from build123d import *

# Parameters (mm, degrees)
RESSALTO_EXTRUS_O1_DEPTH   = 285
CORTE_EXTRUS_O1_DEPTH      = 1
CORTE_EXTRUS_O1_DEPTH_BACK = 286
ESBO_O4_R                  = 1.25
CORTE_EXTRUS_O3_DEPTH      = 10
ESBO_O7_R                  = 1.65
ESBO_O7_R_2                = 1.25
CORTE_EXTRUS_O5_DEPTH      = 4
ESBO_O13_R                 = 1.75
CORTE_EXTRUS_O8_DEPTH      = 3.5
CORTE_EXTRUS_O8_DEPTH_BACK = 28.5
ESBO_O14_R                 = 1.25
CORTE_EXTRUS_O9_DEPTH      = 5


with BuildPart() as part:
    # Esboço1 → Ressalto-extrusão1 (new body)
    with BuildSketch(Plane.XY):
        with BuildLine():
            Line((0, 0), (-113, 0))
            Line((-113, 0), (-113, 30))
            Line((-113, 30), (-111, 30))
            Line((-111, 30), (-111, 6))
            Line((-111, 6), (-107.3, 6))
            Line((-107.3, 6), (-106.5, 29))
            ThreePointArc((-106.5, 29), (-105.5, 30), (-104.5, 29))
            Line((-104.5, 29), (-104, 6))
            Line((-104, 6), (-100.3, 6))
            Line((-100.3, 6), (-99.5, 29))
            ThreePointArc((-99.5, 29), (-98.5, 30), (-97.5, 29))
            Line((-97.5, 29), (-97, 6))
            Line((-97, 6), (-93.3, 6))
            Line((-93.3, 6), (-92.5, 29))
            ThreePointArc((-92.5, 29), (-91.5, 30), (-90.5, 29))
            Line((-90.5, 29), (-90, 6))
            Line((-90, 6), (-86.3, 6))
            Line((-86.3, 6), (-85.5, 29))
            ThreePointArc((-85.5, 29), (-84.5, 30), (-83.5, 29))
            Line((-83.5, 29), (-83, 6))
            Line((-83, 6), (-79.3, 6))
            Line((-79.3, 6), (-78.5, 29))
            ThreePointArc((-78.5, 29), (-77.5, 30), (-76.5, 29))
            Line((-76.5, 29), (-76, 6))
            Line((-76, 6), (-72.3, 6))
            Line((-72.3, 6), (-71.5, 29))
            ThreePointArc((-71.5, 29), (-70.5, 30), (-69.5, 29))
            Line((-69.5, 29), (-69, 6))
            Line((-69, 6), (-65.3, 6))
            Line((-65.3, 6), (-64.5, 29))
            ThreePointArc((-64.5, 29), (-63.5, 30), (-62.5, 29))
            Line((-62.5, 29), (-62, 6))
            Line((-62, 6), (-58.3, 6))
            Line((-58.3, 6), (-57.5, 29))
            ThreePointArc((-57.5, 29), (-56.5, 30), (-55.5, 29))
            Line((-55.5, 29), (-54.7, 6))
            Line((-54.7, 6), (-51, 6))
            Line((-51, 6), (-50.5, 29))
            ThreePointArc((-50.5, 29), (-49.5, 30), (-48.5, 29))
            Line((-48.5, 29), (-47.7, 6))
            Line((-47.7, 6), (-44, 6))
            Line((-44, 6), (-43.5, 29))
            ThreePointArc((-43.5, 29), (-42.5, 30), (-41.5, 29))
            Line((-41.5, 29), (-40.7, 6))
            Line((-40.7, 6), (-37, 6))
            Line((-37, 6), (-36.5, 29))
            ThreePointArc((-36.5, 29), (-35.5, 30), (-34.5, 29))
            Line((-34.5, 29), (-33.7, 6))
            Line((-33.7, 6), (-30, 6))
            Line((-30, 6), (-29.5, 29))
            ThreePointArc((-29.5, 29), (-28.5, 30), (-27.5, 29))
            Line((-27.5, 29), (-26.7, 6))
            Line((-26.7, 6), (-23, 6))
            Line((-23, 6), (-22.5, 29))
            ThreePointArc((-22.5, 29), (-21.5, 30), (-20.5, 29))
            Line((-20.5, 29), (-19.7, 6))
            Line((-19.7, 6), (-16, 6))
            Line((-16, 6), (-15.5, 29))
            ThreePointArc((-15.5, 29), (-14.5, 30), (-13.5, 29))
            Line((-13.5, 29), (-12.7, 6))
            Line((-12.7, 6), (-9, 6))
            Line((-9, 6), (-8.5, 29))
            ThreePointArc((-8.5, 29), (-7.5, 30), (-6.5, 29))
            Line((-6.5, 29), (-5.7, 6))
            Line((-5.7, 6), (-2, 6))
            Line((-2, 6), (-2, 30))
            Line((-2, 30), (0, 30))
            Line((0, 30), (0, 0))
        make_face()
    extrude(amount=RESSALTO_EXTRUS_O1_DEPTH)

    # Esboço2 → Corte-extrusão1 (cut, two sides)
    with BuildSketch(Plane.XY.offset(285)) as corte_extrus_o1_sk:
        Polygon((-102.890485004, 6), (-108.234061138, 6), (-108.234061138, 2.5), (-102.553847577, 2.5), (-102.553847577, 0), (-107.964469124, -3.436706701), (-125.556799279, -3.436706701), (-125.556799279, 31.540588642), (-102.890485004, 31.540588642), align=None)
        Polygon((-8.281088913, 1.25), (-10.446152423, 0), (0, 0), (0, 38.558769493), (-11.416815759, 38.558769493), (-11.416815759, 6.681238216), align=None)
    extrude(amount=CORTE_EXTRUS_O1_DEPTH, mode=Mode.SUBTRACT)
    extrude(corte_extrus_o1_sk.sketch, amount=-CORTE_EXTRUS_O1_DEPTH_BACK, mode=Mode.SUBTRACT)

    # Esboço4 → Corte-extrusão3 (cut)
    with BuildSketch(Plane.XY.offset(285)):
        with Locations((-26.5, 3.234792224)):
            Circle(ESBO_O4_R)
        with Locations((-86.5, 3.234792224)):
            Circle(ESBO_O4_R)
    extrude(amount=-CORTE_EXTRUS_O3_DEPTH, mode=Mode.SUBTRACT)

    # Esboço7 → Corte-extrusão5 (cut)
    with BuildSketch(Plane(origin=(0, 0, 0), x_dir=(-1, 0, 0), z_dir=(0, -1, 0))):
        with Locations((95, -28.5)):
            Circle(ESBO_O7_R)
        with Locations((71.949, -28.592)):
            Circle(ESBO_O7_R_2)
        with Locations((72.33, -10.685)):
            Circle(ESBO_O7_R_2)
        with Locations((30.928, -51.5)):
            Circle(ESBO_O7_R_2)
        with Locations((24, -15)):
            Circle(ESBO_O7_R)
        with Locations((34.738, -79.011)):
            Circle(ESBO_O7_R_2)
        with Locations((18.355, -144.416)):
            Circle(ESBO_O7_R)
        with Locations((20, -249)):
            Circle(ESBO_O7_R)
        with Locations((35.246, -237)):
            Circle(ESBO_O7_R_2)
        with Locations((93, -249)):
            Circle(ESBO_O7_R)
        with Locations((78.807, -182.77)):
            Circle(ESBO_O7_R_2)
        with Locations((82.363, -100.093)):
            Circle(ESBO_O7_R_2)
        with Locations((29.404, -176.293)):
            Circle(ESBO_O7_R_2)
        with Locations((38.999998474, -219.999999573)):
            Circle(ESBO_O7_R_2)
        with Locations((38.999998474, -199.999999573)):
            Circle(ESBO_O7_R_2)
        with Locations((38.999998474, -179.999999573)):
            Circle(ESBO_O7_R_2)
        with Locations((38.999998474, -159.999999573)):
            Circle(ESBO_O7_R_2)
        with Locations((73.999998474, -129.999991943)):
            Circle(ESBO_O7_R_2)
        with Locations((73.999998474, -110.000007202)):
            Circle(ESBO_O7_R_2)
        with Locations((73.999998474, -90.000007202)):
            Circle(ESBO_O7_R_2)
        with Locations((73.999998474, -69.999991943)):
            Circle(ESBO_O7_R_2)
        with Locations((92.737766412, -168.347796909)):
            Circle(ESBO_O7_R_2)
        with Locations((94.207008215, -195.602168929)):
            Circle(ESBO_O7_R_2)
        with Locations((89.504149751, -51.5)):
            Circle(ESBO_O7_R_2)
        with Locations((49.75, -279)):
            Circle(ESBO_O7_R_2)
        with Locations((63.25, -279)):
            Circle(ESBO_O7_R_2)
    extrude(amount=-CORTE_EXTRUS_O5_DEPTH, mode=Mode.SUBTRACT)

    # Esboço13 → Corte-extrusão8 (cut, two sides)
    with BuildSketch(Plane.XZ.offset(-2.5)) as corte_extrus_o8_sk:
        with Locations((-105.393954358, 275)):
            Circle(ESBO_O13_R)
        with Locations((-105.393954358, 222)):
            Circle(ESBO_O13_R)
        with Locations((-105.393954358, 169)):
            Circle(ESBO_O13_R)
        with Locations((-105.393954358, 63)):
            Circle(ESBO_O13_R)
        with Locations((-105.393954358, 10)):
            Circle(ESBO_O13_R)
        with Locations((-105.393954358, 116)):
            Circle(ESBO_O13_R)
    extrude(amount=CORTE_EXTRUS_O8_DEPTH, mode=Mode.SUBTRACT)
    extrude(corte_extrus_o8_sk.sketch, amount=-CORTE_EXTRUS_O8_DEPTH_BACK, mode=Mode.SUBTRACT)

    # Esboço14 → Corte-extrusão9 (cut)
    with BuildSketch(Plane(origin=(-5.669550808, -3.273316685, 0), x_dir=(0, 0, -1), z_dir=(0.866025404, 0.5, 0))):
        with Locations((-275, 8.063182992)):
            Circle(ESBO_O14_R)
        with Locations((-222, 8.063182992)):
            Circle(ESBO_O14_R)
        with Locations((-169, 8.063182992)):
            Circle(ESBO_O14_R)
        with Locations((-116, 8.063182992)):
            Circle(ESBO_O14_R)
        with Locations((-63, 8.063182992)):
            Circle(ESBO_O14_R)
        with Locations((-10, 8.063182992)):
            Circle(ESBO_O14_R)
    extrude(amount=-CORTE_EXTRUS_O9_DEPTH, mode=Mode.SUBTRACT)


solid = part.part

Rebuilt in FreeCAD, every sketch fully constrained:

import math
import FreeCAD as App
import Part
import Sketcher

V = App.Vector
Q = App.Units.Quantity


def add_polygon(sketch, points):
    """Adds a closed chain of lines whose ends are joined by coincident constraints."""
    first, n = sketch.GeometryCount, len(points)
    for a, b in zip(points, points[1:] + points[:1]):
        sketch.addGeometry(Part.LineSegment(App.Vector(*a, 0), App.Vector(*b, 0)), False)
    for i in range(n):
        sketch.addConstraint(Sketcher.Constraint("Coincident", first + i, 2, first + (i + 1) % n, 1))

doc = App.newDocument("Part")
body = doc.addObject("PartDesign::Body", "Body")

sketch1 = doc.addObject("Sketcher::SketchObject", "Sketch")
body.addObject(sketch1)
sketch1.AttachmentSupport = (doc.XY_Plane, [""])
sketch1.MapMode = "FlatFace"
sketch1.addGeometry([
    Part.LineSegment(V(-113, 0, 0), V(0, 0, 0)),
    Part.LineSegment(V(0, 0, 0), V(0, 30, 0)),
    Part.LineSegment(V(0, 30, 0), V(-2, 30, 0)),
    Part.LineSegment(V(-2, 30, 0), V(-2, 6, 0)),
    Part.LineSegment(V(-2, 6, 0), V(-5.7, 6, 0)),
    Part.LineSegment(V(-5.7, 6, 0), V(-6.5, 29, 0)),
    Part.ArcOfCircle(Part.Circle(V(-7.5, 29, 0), V(0, 0, 1), 1), math.radians(0), math.radians(180)),
    Part.LineSegment(V(-8.5, 29, 0), V(-9, 6, 0)),
    Part.LineSegment(V(-9, 6, 0), V(-12.7, 6, 0)),
    Part.LineSegment(V(-12.7, 6, 0), V(-13.5, 29, 0)),
    Part.ArcOfCircle(Part.Circle(V(-14.5, 29, 0), V(0, 0, 1), 1), math.radians(0), math.radians(180)),
    Part.LineSegment(V(-15.5, 29, 0), V(-16, 6, 0)),
    Part.LineSegment(V(-16, 6, 0), V(-19.7, 6, 0)),
    Part.LineSegment(V(-19.7, 6, 0), V(-20.5, 29, 0)),
    Part.ArcOfCircle(Part.Circle(V(-21.5, 29, 0), V(0, 0, 1), 1), math.radians(0), math.radians(180)),
    Part.LineSegment(V(-22.5, 29, 0), V(-23, 6, 0)),
    Part.LineSegment(V(-23, 6, 0), V(-26.7, 6, 0)),
    Part.LineSegment(V(-26.7, 6, 0), V(-27.5, 29, 0)),
    Part.ArcOfCircle(Part.Circle(V(-28.5, 29, 0), V(0, 0, 1), 1), math.radians(0), math.radians(180)),
    Part.LineSegment(V(-29.5, 29, 0), V(-30, 6, 0)),
    Part.LineSegment(V(-30, 6, 0), V(-33.7, 6, 0)),
    Part.LineSegment(V(-33.7, 6, 0), V(-34.5, 29, 0)),
    Part.ArcOfCircle(Part.Circle(V(-35.5, 29, 0), V(0, 0, 1), 1), math.radians(0), math.radians(180)),
    Part.LineSegment(V(-36.5, 29, 0), V(-37, 6, 0)),
    Part.LineSegment(V(-37, 6, 0), V(-40.7, 6, 0)),
    Part.LineSegment(V(-40.7, 6, 0), V(-41.5, 29, 0)),
    Part.ArcOfCircle(Part.Circle(V(-42.5, 29, 0), V(0, 0, 1), 1), math.radians(0), math.radians(180)),
    Part.LineSegment(V(-43.5, 29, 0), V(-44, 6, 0)),
    Part.LineSegment(V(-44, 6, 0), V(-47.7, 6, 0)),
    Part.LineSegment(V(-47.7, 6, 0), V(-48.5, 29, 0)),
    Part.ArcOfCircle(Part.Circle(V(-49.5, 29, 0), V(0, 0, 1), 1), math.radians(0), math.radians(180)),
    Part.LineSegment(V(-50.5, 29, 0), V(-51, 6, 0)),
    Part.LineSegment(V(-51, 6, 0), V(-54.7, 6, 0)),
    Part.LineSegment(V(-54.7, 6, 0), V(-55.5, 29, 0)),
    Part.ArcOfCircle(Part.Circle(V(-56.5, 29, 0), V(0, 0, 1), 1), math.radians(0), math.radians(180)),
    Part.LineSegment(V(-57.5, 29, 0), V(-58.3, 6, 0)),
    Part.LineSegment(V(-58.3, 6, 0), V(-62, 6, 0)),
    Part.LineSegment(V(-62, 6, 0), V(-62.5, 29, 0)),
    Part.ArcOfCircle(Part.Circle(V(-63.5, 29, 0), V(0, 0, 1), 1), math.radians(0), math.radians(180)),
    Part.LineSegment(V(-64.5, 29, 0), V(-65.3, 6, 0)),
    Part.LineSegment(V(-65.3, 6, 0), V(-69, 6, 0)),
    Part.LineSegment(V(-69, 6, 0), V(-69.5, 29, 0)),
    Part.ArcOfCircle(Part.Circle(V(-70.5, 29, 0), V(0, 0, 1), 1), math.radians(0), math.radians(180)),
    Part.LineSegment(V(-71.5, 29, 0), V(-72.3, 6, 0)),
    Part.LineSegment(V(-72.3, 6, 0), V(-76, 6, 0)),
    Part.LineSegment(V(-76, 6, 0), V(-76.5, 29, 0)),
    Part.ArcOfCircle(Part.Circle(V(-77.5, 29, 0), V(0, 0, 1), 1), math.radians(0), math.radians(180)),
    Part.LineSegment(V(-78.5, 29, 0), V(-79.3, 6, 0)),
    Part.LineSegment(V(-79.3, 6, 0), V(-83, 6, 0)),
    Part.LineSegment(V(-83, 6, 0), V(-83.5, 29, 0)),
    Part.ArcOfCircle(Part.Circle(V(-84.5, 29, 0), V(0, 0, 1), 1), math.radians(0), math.radians(180)),
    Part.LineSegment(V(-85.5, 29, 0), V(-86.3, 6, 0)),
    Part.LineSegment(V(-86.3, 6, 0), V(-90, 6, 0)),
    Part.LineSegment(V(-90, 6, 0), V(-90.5, 29, 0)),
    Part.ArcOfCircle(Part.Circle(V(-91.5, 29, 0), V(0, 0, 1), 1), math.radians(0), math.radians(180)),
    Part.LineSegment(V(-92.5, 29, 0), V(-93.3, 6, 0)),
    Part.LineSegment(V(-93.3, 6, 0), V(-97, 6, 0)),
    Part.LineSegment(V(-97, 6, 0), V(-97.5, 29, 0)),
    Part.ArcOfCircle(Part.Circle(V(-98.5, 29, 0), V(0, 0, 1), 1), math.radians(0), math.radians(180)),
    Part.LineSegment(V(-99.5, 29, 0), V(-100.3, 6, 0)),
    Part.LineSegment(V(-100.3, 6, 0), V(-104, 6, 0)),
    Part.LineSegment(V(-104, 6, 0), V(-104.5, 29, 0)),
    Part.ArcOfCircle(Part.Circle(V(-105.5, 29, 0), V(0, 0, 1), 1), math.radians(0), math.radians(180)),
    Part.LineSegment(V(-106.5, 29, 0), V(-107.3, 6, 0)),
    Part.LineSegment(V(-107.3, 6, 0), V(-111, 6, 0)),
    Part.LineSegment(V(-111, 6, 0), V(-111, 30, 0)),
    Part.LineSegment(V(-111, 30, 0), V(-113, 30, 0)),
    Part.LineSegment(V(-113, 30, 0), V(-113, 0, 0)),
], False)
sketch1.addConstraint([
    Sketcher.Constraint("Coincident", 0, 2, 1, 1),
    Sketcher.Constraint("Coincident", 1, 2, 2, 1),
    Sketcher.Constraint("Coincident", 2, 2, 3, 1),
    Sketcher.Constraint("Coincident", 3, 2, 4, 1),
    Sketcher.Constraint("Coincident", 4, 2, 5, 1),
    Sketcher.Constraint("Coincident", 5, 2, 6, 1),
    Sketcher.Constraint("Coincident", 6, 2, 7, 1),
    Sketcher.Constraint("Coincident", 7, 2, 8, 1),
    Sketcher.Constraint("Coincident", 8, 2, 9, 1),
    Sketcher.Constraint("Coincident", 9, 2, 10, 1),
    Sketcher.Constraint("Coincident", 10, 2, 11, 1),
    Sketcher.Constraint("Coincident", 11, 2, 12, 1),
    Sketcher.Constraint("Coincident", 12, 2, 13, 1),
    Sketcher.Constraint("Coincident", 13, 2, 14, 1),
    Sketcher.Constraint("Coincident", 14, 2, 15, 1),
    Sketcher.Constraint("Coincident", 15, 2, 16, 1),
    Sketcher.Constraint("Coincident", 16, 2, 17, 1),
    Sketcher.Constraint("Coincident", 17, 2, 18, 1),
    Sketcher.Constraint("Coincident", 18, 2, 19, 1),
    Sketcher.Constraint("Coincident", 19, 2, 20, 1),
    Sketcher.Constraint("Coincident", 20, 2, 21, 1),
    Sketcher.Constraint("Coincident", 21, 2, 22, 1),
    Sketcher.Constraint("Coincident", 22, 2, 23, 1),
    Sketcher.Constraint("Coincident", 23, 2, 24, 1),
    Sketcher.Constraint("Coincident", 24, 2, 25, 1),
    Sketcher.Constraint("Coincident", 25, 2, 26, 1),
    Sketcher.Constraint("Coincident", 26, 2, 27, 1),
    Sketcher.Constraint("Coincident", 27, 2, 28, 1),
    Sketcher.Constraint("Coincident", 28, 2, 29, 1),
    Sketcher.Constraint("Coincident", 29, 2, 30, 1),
    Sketcher.Constraint("Coincident", 30, 2, 31, 1),
    Sketcher.Constraint("Coincident", 31, 2, 32, 1),
    Sketcher.Constraint("Coincident", 32, 2, 33, 1),
    Sketcher.Constraint("Coincident", 33, 2, 34, 1),
    Sketcher.Constraint("Coincident", 34, 2, 35, 1),
    Sketcher.Constraint("Coincident", 35, 2, 36, 1),
    Sketcher.Constraint("Coincident", 36, 2, 37, 1),
    Sketcher.Constraint("Coincident", 37, 2, 38, 1),
    Sketcher.Constraint("Coincident", 38, 2, 39, 1),
    Sketcher.Constraint("Coincident", 39, 2, 40, 1),
    Sketcher.Constraint("Coincident", 40, 2, 41, 1),
    Sketcher.Constraint("Coincident", 41, 2, 42, 1),
    Sketcher.Constraint("Coincident", 42, 2, 43, 1),
    Sketcher.Constraint("Coincident", 43, 2, 44, 1),
    Sketcher.Constraint("Coincident", 44, 2, 45, 1),
    Sketcher.Constraint("Coincident", 45, 2, 46, 1),
    Sketcher.Constraint("Coincident", 46, 2, 47, 1),
    Sketcher.Constraint("Coincident", 47, 2, 48, 1),
    Sketcher.Constraint("Coincident", 48, 2, 49, 1),
    Sketcher.Constraint("Coincident", 49, 2, 50, 1),
    Sketcher.Constraint("Coincident", 50, 2, 51, 1),
    Sketcher.Constraint("Coincident", 51, 2, 52, 1),
    Sketcher.Constraint("Coincident", 52, 2, 53, 1),
    Sketcher.Constraint("Coincident", 53, 2, 54, 1),
    Sketcher.Constraint("Coincident", 54, 2, 55, 1),
    Sketcher.Constraint("Coincident", 55, 2, 56, 1),
    Sketcher.Constraint("Coincident", 56, 2, 57, 1),
    Sketcher.Constraint("Coincident", 57, 2, 58, 1),
    Sketcher.Constraint("Coincident", 58, 2, 59, 1),
    Sketcher.Constraint("Coincident", 59, 2, 60, 1),
    Sketcher.Constraint("Coincident", 60, 2, 61, 1),
    Sketcher.Constraint("Coincident", 61, 2, 62, 1),
    Sketcher.Constraint("Coincident", 62, 2, 63, 1),
    Sketcher.Constraint("Coincident", 63, 2, 64, 1),
    Sketcher.Constraint("Coincident", 64, 2, 65, 1),
    Sketcher.Constraint("Coincident", 65, 2, 66, 1),
    Sketcher.Constraint("Coincident", 66, 2, 67, 1),
    Sketcher.Constraint("Coincident", 67, 2, 0, 1),
    Sketcher.Constraint("Horizontal", 0),
    Sketcher.Constraint("Vertical", 1),
    Sketcher.Constraint("Horizontal", 2),
    Sketcher.Constraint("Vertical", 3),
    Sketcher.Constraint("Horizontal", 4),
    Sketcher.Constraint("Horizontal", 8),
    Sketcher.Constraint("Horizontal", 12),
    Sketcher.Constraint("Horizontal", 16),
    Sketcher.Constraint("Horizontal", 20),
    Sketcher.Constraint("Horizontal", 24),
    Sketcher.Constraint("Horizontal", 28),
    Sketcher.Constraint("Horizontal", 32),
    Sketcher.Constraint("Horizontal", 36),
    Sketcher.Constraint("Horizontal", 40),
    Sketcher.Constraint("Horizontal", 44),
    Sketcher.Constraint("Horizontal", 48),
    Sketcher.Constraint("Horizontal", 52),
    Sketcher.Constraint("Horizontal", 56),
    Sketcher.Constraint("Horizontal", 60),
    Sketcher.Constraint("Horizontal", 64),
    Sketcher.Constraint("Vertical", 65),
    Sketcher.Constraint("Horizontal", 66),
    Sketcher.Constraint("Vertical", 67),
    Sketcher.Constraint("Coincident", 0, 2, -1, 1),
    Sketcher.Constraint("Equal", 6, 10),
    Sketcher.Constraint("Equal", 10, 14),
    Sketcher.Constraint("Equal", 14, 18),
    Sketcher.Constraint("Equal", 18, 22),
    Sketcher.Constraint("Equal", 22, 26),
    Sketcher.Constraint("Equal", 26, 30),
    Sketcher.Constraint("Equal", 30, 34),
    Sketcher.Constraint("Equal", 34, 38),
    Sketcher.Constraint("Equal", 38, 42),
    Sketcher.Constraint("Equal", 42, 46),
    Sketcher.Constraint("Equal", 46, 50),
    Sketcher.Constraint("Equal", 50, 54),
    Sketcher.Constraint("Equal", 54, 58),
    Sketcher.Constraint("Equal", 58, 62),
    Sketcher.Constraint("Parallel", 5, 9),
    Sketcher.Constraint("Parallel", 7, 11),
    Sketcher.Constraint("Parallel", 9, 13),
    Sketcher.Constraint("Parallel", 11, 15),
    Sketcher.Constraint("Parallel", 13, 17),
    Sketcher.Constraint("Parallel", 15, 19),
    Sketcher.Constraint("Parallel", 17, 21),
    Sketcher.Constraint("Parallel", 19, 23),
    Sketcher.Constraint("Parallel", 21, 25),
    Sketcher.Constraint("Parallel", 23, 27),
    Sketcher.Constraint("Parallel", 25, 29),
    Sketcher.Constraint("Parallel", 27, 31),
    Sketcher.Constraint("Parallel", 29, 33),
    Sketcher.Constraint("Parallel", 35, 39),
    Sketcher.Constraint("Parallel", 37, 41),
    Sketcher.Constraint("Parallel", 39, 43),
    Sketcher.Constraint("Parallel", 41, 45),
    Sketcher.Constraint("Parallel", 43, 47),
    Sketcher.Constraint("Parallel", 45, 49),
    Sketcher.Constraint("Parallel", 47, 51),
    Sketcher.Constraint("Parallel", 49, 53),
    Sketcher.Constraint("Parallel", 51, 55),
    Sketcher.Constraint("Parallel", 53, 57),
    Sketcher.Constraint("Parallel", 55, 59),
    Sketcher.Constraint("Parallel", 57, 61),
    Sketcher.Constraint("Parallel", 59, 63),
    Sketcher.Constraint("Horizontal", 6, 3, 10, 3),
    Sketcher.Constraint("Horizontal", 10, 3, 14, 3),
    Sketcher.Constraint("Horizontal", 14, 3, 18, 3),
    Sketcher.Constraint("Horizontal", 18, 3, 22, 3),
    Sketcher.Constraint("Horizontal", 22, 3, 26, 3),
    Sketcher.Constraint("Horizontal", 26, 3, 30, 3),
    Sketcher.Constraint("Horizontal", 30, 3, 34, 3),
    Sketcher.Constraint("Horizontal", 34, 3, 38, 3),
    Sketcher.Constraint("Horizontal", 38, 3, 42, 3),
    Sketcher.Constraint("Horizontal", 42, 3, 46, 3),
    Sketcher.Constraint("Horizontal", 46, 3, 50, 3),
    Sketcher.Constraint("Horizontal", 50, 3, 54, 3),
    Sketcher.Constraint("Horizontal", 54, 3, 58, 3),
    Sketcher.Constraint("Horizontal", 58, 3, 62, 3),
    Sketcher.Constraint("Horizontal", 62, 3, 5, 2),
    Sketcher.Constraint("Horizontal", 5, 2, 6, 2),
    Sketcher.Constraint("Horizontal", 4, 2, 7, 2),
    Sketcher.Constraint("Horizontal", 6, 2, 9, 2),
    Sketcher.Constraint("Horizontal", 9, 2, 10, 2),
    Sketcher.Constraint("Horizontal", 8, 2, 11, 2),
    Sketcher.Constraint("Horizontal", 10, 2, 13, 2),
    Sketcher.Constraint("Horizontal", 13, 2, 14, 2),
    Sketcher.Constraint("Horizontal", 12, 2, 15, 2),
    Sketcher.Constraint("Horizontal", 14, 2, 17, 2),
    Sketcher.Constraint("Horizontal", 17, 2, 18, 2),
    Sketcher.Constraint("Horizontal", 16, 2, 19, 2),
    Sketcher.Constraint("Horizontal", 18, 2, 21, 2),
    Sketcher.Constraint("Horizontal", 21, 2, 22, 2),
    Sketcher.Constraint("Horizontal", 20, 2, 23, 2),
    Sketcher.Constraint("Horizontal", 22, 2, 25, 2),
    Sketcher.Constraint("Horizontal", 25, 2, 26, 2),
    Sketcher.Constraint("Horizontal", 24, 2, 27, 2),
    Sketcher.Constraint("Horizontal", 26, 2, 29, 2),
    Sketcher.Constraint("Horizontal", 29, 2, 30, 2),
    Sketcher.Constraint("Horizontal", 28, 2, 31, 2),
    Sketcher.Constraint("Horizontal", 30, 2, 33, 2),
    Sketcher.Constraint("Horizontal", 33, 2, 34, 2),
    Sketcher.Constraint("Horizontal", 32, 2, 35, 2),
    Sketcher.Constraint("Horizontal", 34, 2, 37, 2),
    Sketcher.Constraint("Horizontal", 37, 2, 38, 2),
    Sketcher.Constraint("Horizontal", 36, 2, 39, 2),
    Sketcher.Constraint("Horizontal", 38, 2, 41, 2),
    Sketcher.Constraint("Horizontal", 41, 2, 42, 2),
    Sketcher.Constraint("Horizontal", 40, 2, 43, 2),
    Sketcher.Constraint("Horizontal", 42, 2, 45, 2),
    Sketcher.Constraint("Horizontal", 45, 2, 46, 2),
    Sketcher.Constraint("Horizontal", 44, 2, 47, 2),
    Sketcher.Constraint("Horizontal", 46, 2, 49, 2),
    Sketcher.Constraint("Horizontal", 49, 2, 50, 2),
    Sketcher.Constraint("Horizontal", 48, 2, 51, 2),
    Sketcher.Constraint("Horizontal", 50, 2, 53, 2),
    Sketcher.Constraint("Horizontal", 53, 2, 54, 2),
    Sketcher.Constraint("Horizontal", 52, 2, 55, 2),
    Sketcher.Constraint("Horizontal", 54, 2, 57, 2),
    Sketcher.Constraint("Horizontal", 57, 2, 58, 2),
    Sketcher.Constraint("Horizontal", 56, 2, 59, 2),
    Sketcher.Constraint("Horizontal", 58, 2, 61, 2),
    Sketcher.Constraint("Horizontal", 61, 2, 62, 2),
    Sketcher.Constraint("Horizontal", 60, 2, 63, 2),
    Sketcher.Constraint("Horizontal", 2, 2, 65, 2),
    Sketcher.Constraint("Equal", 4, 8),
    Sketcher.Constraint("Equal", 8, 12),
    Sketcher.Constraint("Equal", 12, 16),
    Sketcher.Constraint("Equal", 16, 20),
    Sketcher.Constraint("Equal", 20, 24),
    Sketcher.Constraint("Equal", 24, 28),
    Sketcher.Constraint("Equal", 28, 32),
    Sketcher.Constraint("Equal", 32, 36),
    Sketcher.Constraint("Equal", 36, 40),
    Sketcher.Constraint("Equal", 40, 44),
    Sketcher.Constraint("Equal", 44, 48),
    Sketcher.Constraint("Equal", 48, 52),
    Sketcher.Constraint("Equal", 52, 56),
    Sketcher.Constraint("Equal", 56, 60),
    Sketcher.Constraint("Equal", 60, 64),
    Sketcher.Constraint("Equal", 2, 66),
    Sketcher.Constraint("Equal", 33, 35),
    Sketcher.Constraint("Radius", 6, Q("1 mm")),
    Sketcher.Constraint("DistanceX", 0, 1, 0, 2, Q("113 mm")),
    Sketcher.Constraint("DistanceX", 2, 2, 2, 1, Q("2 mm")),
    Sketcher.Constraint("DistanceY", 1, 1, 1, 2, Q("30 mm")),
    Sketcher.Constraint("DistanceY", 3, 2, 3, 1, Q("24 mm")),
    Sketcher.Constraint("DistanceX", 4, 2, 4, 1, Q("3.7 mm")),
    Sketcher.Constraint("DistanceY", -1, 1, 6, 3, Q("29 mm")),
    Sketcher.Constraint("DistanceX", 7, 2, -1, 1, Q("9 mm")),
    Sketcher.Constraint("DistanceX", 36, 2, -1, 1, Q("62 mm")),
])
pad1 = doc.addObject("PartDesign::Pad", "Pad")
body.addObject(pad1)
pad1.Profile = sketch1
pad1.Length = 285

sketch2 = doc.addObject("Sketcher::SketchObject", "Sketch001")
body.addObject(sketch2)
sketch2.AttachmentSupport = (doc.XY_Plane, [""])
sketch2.MapMode = "FlatFace"
sketch2.AttachmentOffset = App.Placement(V(0, 0, 285), App.Rotation())
add_polygon(sketch2, [(-108.2, 6), (-102.9, 6), (-102.9, 31.5), (-125.6, 31.5), (-125.6, -3.4), (-108, -3.4), (-102.6, 0), (-102.6, 2.5), (-108.2, 2.5)])
add_polygon(sketch2, [(-8.3, 1.2), (-10.4, 0), (0, 0), (0, 38.6), (-11.4, 38.6), (-11.4, 6.7)])
sketch2.addConstraint([
    Sketcher.Constraint("Horizontal", 0),
    Sketcher.Constraint("Vertical", 1),
    Sketcher.Constraint("Horizontal", 2),
    Sketcher.Constraint("Vertical", 3),
    Sketcher.Constraint("Horizontal", 4),
    Sketcher.Constraint("Vertical", 6),
    Sketcher.Constraint("Horizontal", 7),
    Sketcher.Constraint("Vertical", 8),
    Sketcher.Constraint("Horizontal", 10),
    Sketcher.Constraint("Vertical", 11),
    Sketcher.Constraint("Horizontal", 12),
    Sketcher.Constraint("Vertical", 13),
    Sketcher.Constraint("Coincident", 10, 2, -1, 1),
    Sketcher.Constraint("PointOnObject", 5, 2, -1),
    Sketcher.Constraint("Perpendicular", 9, 14),
    Sketcher.Constraint("Angle", 9, Q("-150 deg")),
    Sketcher.Constraint("DistanceY", 6, 1, 6, 2, Q("2.5 mm")),
    Sketcher.Constraint("DistanceY", 8, 1, 8, 2, Q("3.5 mm")),
    Sketcher.Constraint("Distance", 9, Q("2.5 mm")),
    Sketcher.Constraint("DistanceX", 4, 1, 4, 2, Q("17.59233 mm")),
    Sketcher.Constraint("DistanceY", 1, 1, 1, 2, Q("25.540589 mm")),
    Sketcher.Constraint("DistanceY", 11, 1, 11, 2, Q("38.558769 mm")),
    Sketcher.Constraint("DistanceY", 13, 2, 13, 1, Q("31.877531 mm")),
    Sketcher.Constraint("DistanceX", 2, 2, -1, 1, Q("125.556799 mm")),
    Sketcher.Constraint("Distance", 5, Q("6.409819 mm")),
    Sketcher.Constraint("DistanceX", 0, 1, 0, 2, Q("5.343576 mm")),
    Sketcher.Constraint("DistanceX", 2, 2, 2, 1, Q("22.666314 mm")),
    Sketcher.Constraint("DistanceX", 7, 2, 7, 1, Q("5.680214 mm")),
    Sketcher.Constraint("DistanceX", 10, 1, 10, 2, Q("10.446152 mm")),
])
pocket1 = doc.addObject("PartDesign::Pocket", "Pocket")
body.addObject(pocket1)
pocket1.Profile = sketch2
pocket1.Type = "ThroughAll"
pocket1.Midplane = True

sketch3 = doc.addObject("Sketcher::SketchObject", "Sketch002")
body.addObject(sketch3)
sketch3.AttachmentSupport = (doc.XY_Plane, [""])
sketch3.MapMode = "FlatFace"
sketch3.AttachmentOffset = App.Placement(V(0, 0, 285), App.Rotation())
sketch3.addGeometry([
    Part.Circle(V(-26.5, 3.2, 0), V(0, 0, 1), 1.2),
    Part.Circle(V(-86.5, 3.2, 0), V(0, 0, 1), 1.2),
], False)
sketch3.addConstraint([
    Sketcher.Constraint("Equal", 0, 1),
    Sketcher.Constraint("Horizontal", 0, 3, 1, 3),
    Sketcher.Constraint("Diameter", 0, Q("2.5 mm")),
    Sketcher.Constraint("DistanceX", 1, 3, 0, 3, Q("60 mm")),
    Sketcher.Constraint("DistanceX", 0, 3, -1, 1, Q("26.5 mm")),
    Sketcher.Constraint("DistanceY", -1, 1, 0, 3, Q("3.234792 mm")),
])
pocket2 = doc.addObject("PartDesign::Pocket", "Pocket001")
body.addObject(pocket2)
pocket2.Profile = sketch3
pocket2.Length = 10

sketch4 = doc.addObject("Sketcher::SketchObject", "Sketch003")
body.addObject(sketch4)
sketch4.AttachmentSupport = (doc.XZ_Plane, [""])
sketch4.MapMode = "FlatFace"
sketch4.addGeometry([
    Part.Circle(V(-95, 28.5, 0), V(0, 0, 1), 1.6),
    Part.Circle(V(-71.9, 28.6, 0), V(0, 0, 1), 1.2),
    Part.Circle(V(-72.3, 10.7, 0), V(0, 0, 1), 1.2),
    Part.Circle(V(-30.9, 51.5, 0), V(0, 0, 1), 1.2),
    Part.Circle(V(-24, 15, 0), V(0, 0, 1), 1.6),
    Part.Circle(V(-34.7, 79, 0), V(0, 0, 1), 1.2),
    Part.Circle(V(-18.4, 144.4, 0), V(0, 0, 1), 1.6),
    Part.Circle(V(-20, 249, 0), V(0, 0, 1), 1.6),
    Part.Circle(V(-35.2, 237, 0), V(0, 0, 1), 1.2),
    Part.Circle(V(-93, 249, 0), V(0, 0, 1), 1.6),
    Part.Circle(V(-78.8, 182.8, 0), V(0, 0, 1), 1.2),
    Part.Circle(V(-82.4, 100.1, 0), V(0, 0, 1), 1.2),
    Part.Circle(V(-29.4, 176.3, 0), V(0, 0, 1), 1.2),
    Part.Circle(V(-39, 220, 0), V(0, 0, 1), 1.2),
    Part.Circle(V(-39, 200, 0), V(0, 0, 1), 1.2),
    Part.Circle(V(-39, 180, 0), V(0, 0, 1), 1.2),
    Part.Circle(V(-39, 160, 0), V(0, 0, 1), 1.2),
    Part.Circle(V(-74, 130, 0), V(0, 0, 1), 1.2),
    Part.Circle(V(-74, 110, 0), V(0, 0, 1), 1.2),
    Part.Circle(V(-74, 90, 0), V(0, 0, 1), 1.2),
    Part.Circle(V(-74, 70, 0), V(0, 0, 1), 1.2),
    Part.Circle(V(-92.7, 168.3, 0), V(0, 0, 1), 1.2),
    Part.Circle(V(-94.2, 195.6, 0), V(0, 0, 1), 1.2),
    Part.Circle(V(-89.5, 51.5, 0), V(0, 0, 1), 1.2),
    Part.Circle(V(-49.8, 279, 0), V(0, 0, 1), 1.2),
    Part.Circle(V(-63.2, 279, 0), V(0, 0, 1), 1.2),
], False)
sketch4.addConstraint([
    Sketcher.Constraint("Equal", 1, 2),
    Sketcher.Constraint("Equal", 2, 3),
    Sketcher.Constraint("Equal", 0, 4),
    Sketcher.Constraint("Equal", 3, 5),
    Sketcher.Constraint("Equal", 4, 6),
    Sketcher.Constraint("Equal", 6, 7),
    Sketcher.Constraint("Equal", 5, 8),
    Sketcher.Constraint("Equal", 7, 9),
    Sketcher.Constraint("Equal", 8, 10),
    Sketcher.Constraint("Equal", 10, 11),
    Sketcher.Constraint("Equal", 11, 12),
    Sketcher.Constraint("Equal", 12, 13),
    Sketcher.Constraint("Equal", 13, 14),
    Sketcher.Constraint("Equal", 14, 15),
    Sketcher.Constraint("Equal", 15, 16),
    Sketcher.Constraint("Equal", 16, 17),
    Sketcher.Constraint("Equal", 17, 18),
    Sketcher.Constraint("Equal", 18, 19),
    Sketcher.Constraint("Equal", 19, 20),
    Sketcher.Constraint("Equal", 20, 21),
    Sketcher.Constraint("Equal", 21, 22),
    Sketcher.Constraint("Equal", 22, 23),
    Sketcher.Constraint("Equal", 23, 24),
    Sketcher.Constraint("Equal", 24, 25),
    Sketcher.Constraint("Horizontal", 7, 3, 9, 3),
    Sketcher.Constraint("Horizontal", 3, 3, 23, 3),
    Sketcher.Constraint("Horizontal", 24, 3, 25, 3),
    Sketcher.Constraint("Vertical", 13, 3, 14, 3),
    Sketcher.Constraint("Vertical", 14, 3, 15, 3),
    Sketcher.Constraint("Vertical", 15, 3, 16, 3),
    Sketcher.Constraint("Vertical", 17, 3, 18, 3),
    Sketcher.Constraint("Vertical", 18, 3, 19, 3),
    Sketcher.Constraint("Vertical", 19, 3, 20, 3),
    Sketcher.Constraint("Diameter", 0, Q("3.3 mm")),
    Sketcher.Constraint("Diameter", 1, Q("2.5 mm")),
    Sketcher.Constraint("DistanceX", 0, 3, -1, 1, Q("95 mm")),
    Sketcher.Constraint("DistanceX", 4, 3, -1, 1, Q("24 mm")),
    Sketcher.Constraint("DistanceY", -1, 1, 4, 3, Q("15 mm")),
    Sketcher.Constraint("DistanceX", 7, 3, -1, 1, Q("20 mm")),
    Sketcher.Constraint("DistanceY", -1, 1, 7, 3, Q("249 mm")),
    Sketcher.Constraint("DistanceY", -1, 1, 8, 3, Q("237 mm")),
    Sketcher.Constraint("DistanceX", 9, 3, -1, 1, Q("93 mm")),
    Sketcher.Constraint("DistanceX", 13, 3, -1, 1, Q("38.999998 mm")),
    Sketcher.Constraint("DistanceY", -1, 1, 13, 3, Q("220 mm")),
    Sketcher.Constraint("DistanceY", -1, 1, 14, 3, Q("200 mm")),
    Sketcher.Constraint("DistanceY", -1, 1, 15, 3, Q("180 mm")),
    Sketcher.Constraint("DistanceY", -1, 1, 16, 3, Q("160 mm")),
    Sketcher.Constraint("DistanceX", 17, 3, -1, 1, Q("73.999998 mm")),
    Sketcher.Constraint("DistanceY", -1, 1, 24, 3, Q("279 mm")),
    Sketcher.Constraint("DistanceY", 0, 3, 3, 3, Q("23 mm")),
    Sketcher.Constraint("DistanceY", 19, 3, 18, 3, Q("20 mm")),
    Sketcher.Constraint("DistanceY", -1, 1, 0, 3, Q("28.5 mm")),
    Sketcher.Constraint("DistanceY", 11, 3, 12, 3, Q("76.2 mm")),
    Sketcher.Constraint("DistanceX", 25, 3, 24, 3, Q("13.5 mm")),
    Sketcher.Constraint("DistanceX", 2, 3, -1, 1, Q("72.33 mm")),
    Sketcher.Constraint("DistanceY", -1, 1, 10, 3, Q("182.77 mm")),
    Sketcher.Constraint("DistanceX", 24, 3, -1, 1, Q("49.75 mm")),
    Sketcher.Constraint("DistanceX", 5, 3, 3, 3, Q("3.81 mm")),
    Sketcher.Constraint("DistanceX", 1, 3, -1, 1, Q("71.949 mm")),
    Sketcher.Constraint("DistanceY", -1, 1, 1, 3, Q("28.592 mm")),
    Sketcher.Constraint("DistanceY", -1, 1, 2, 3, Q("10.685 mm")),
    Sketcher.Constraint("DistanceX", 3, 3, -1, 1, Q("30.928 mm")),
    Sketcher.Constraint("DistanceY", -1, 1, 5, 3, Q("79.011 mm")),
    Sketcher.Constraint("DistanceX", 6, 3, -1, 1, Q("18.355 mm")),
    Sketcher.Constraint("DistanceY", -1, 1, 6, 3, Q("144.416 mm")),
    Sketcher.Constraint("DistanceX", 8, 3, -1, 1, Q("35.246 mm")),
    Sketcher.Constraint("DistanceX", 10, 3, -1, 1, Q("78.807 mm")),
    Sketcher.Constraint("DistanceX", 11, 3, -1, 1, Q("82.363 mm")),
    Sketcher.Constraint("DistanceY", -1, 1, 11, 3, Q("100.093 mm")),
    Sketcher.Constraint("DistanceX", 12, 3, -1, 1, Q("29.404 mm")),
    Sketcher.Constraint("DistanceY", -1, 1, 17, 3, Q("129.999992 mm")),
    Sketcher.Constraint("DistanceY", -1, 1, 20, 3, Q("69.999992 mm")),
    Sketcher.Constraint("DistanceX", 22, 3, -1, 1, Q("94.207008 mm")),
    Sketcher.Constraint("DistanceY", -1, 1, 22, 3, Q("195.602169 mm")),
    Sketcher.Constraint("DistanceX", 23, 3, -1, 1, Q("89.50415 mm")),
    Sketcher.Constraint("DistanceY", 18, 3, 21, 3, Q("58.34779 mm")),
    Sketcher.Constraint("DistanceX", 22, 3, 21, 3, Q("1.469242 mm")),
    Sketcher.Constraint("DistanceY", -1, 1, 18, 3, Q("110.000007 mm")),
])
pocket3 = doc.addObject("PartDesign::Pocket", "Pocket002")
body.addObject(pocket3)
pocket3.Profile = sketch4
pocket3.Length = 4

sketch5 = doc.addObject("Sketcher::SketchObject", "Sketch004")
body.addObject(sketch5)
sketch5.AttachmentSupport = (doc.XZ_Plane, [""])
sketch5.MapMode = "FlatFace"
sketch5.AttachmentOffset = App.Placement(V(0, 0, -2.5), App.Rotation())
sketch5.addGeometry([
    Part.Circle(V(-105.4, 275, 0), V(0, 0, 1), 1.8),
    Part.Circle(V(-105.4, 222, 0), V(0, 0, 1), 1.8),
    Part.Circle(V(-105.4, 169, 0), V(0, 0, 1), 1.8),
    Part.Circle(V(-105.4, 63, 0), V(0, 0, 1), 1.8),
    Part.Circle(V(-105.4, 10, 0), V(0, 0, 1), 1.8),
    Part.Circle(V(-105.4, 116, 0), V(0, 0, 1), 1.8),
], False)
sketch5.addConstraint([
    Sketcher.Constraint("Equal", 0, 1),
    Sketcher.Constraint("Equal", 1, 2),
    Sketcher.Constraint("Equal", 2, 3),
    Sketcher.Constraint("Equal", 3, 4),
    Sketcher.Constraint("Equal", 4, 5),
    Sketcher.Constraint("Vertical", 0, 3, 1, 3),
    Sketcher.Constraint("Vertical", 1, 3, 2, 3),
    Sketcher.Constraint("Vertical", 2, 3, 3, 3),
    Sketcher.Constraint("Vertical", 3, 3, 4, 3),
    Sketcher.Constraint("Vertical", 4, 3, 5, 3),
    Sketcher.Constraint("Diameter", 0, Q("3.5 mm")),
    Sketcher.Constraint("DistanceY", -1, 1, 0, 3, Q("275 mm")),
    Sketcher.Constraint("DistanceY", -1, 1, 1, 3, Q("222 mm")),
    Sketcher.Constraint("DistanceY", -1, 1, 2, 3, Q("169 mm")),
    Sketcher.Constraint("DistanceY", -1, 1, 3, 3, Q("63 mm")),
    Sketcher.Constraint("DistanceY", -1, 1, 4, 3, Q("10 mm")),
    Sketcher.Constraint("DistanceY", -1, 1, 5, 3, Q("116 mm")),
    Sketcher.Constraint("DistanceX", 0, 3, -1, 1, Q("105.393954 mm")),
])
pocket4 = doc.addObject("PartDesign::Pocket", "Pocket003")
body.addObject(pocket4)
pocket4.Profile = sketch5
pocket4.Type = "ThroughAll"
pocket4.Midplane = True

sketch6 = doc.addObject("Sketcher::SketchObject", "Sketch005")
body.addObject(sketch6)
sketch6.Placement = App.Placement(V(-5.669551, -3.273317, 0), App.Rotation(V(0, 0, -1), V(-0.5, 0.866025404, 0), V(0.866025404, 0.5, 0), "ZXY"))
sketch6.addGeometry([
    Part.Circle(V(-275, 8.1, 0), V(0, 0, 1), 1.2),
    Part.Circle(V(-222, 8.1, 0), V(0, 0, 1), 1.2),
    Part.Circle(V(-169, 8.1, 0), V(0, 0, 1), 1.2),
    Part.Circle(V(-116, 8.1, 0), V(0, 0, 1), 1.2),
    Part.Circle(V(-63, 8.1, 0), V(0, 0, 1), 1.2),
    Part.Circle(V(-10, 8.1, 0), V(0, 0, 1), 1.2),
], False)
sketch6.addConstraint([
    Sketcher.Constraint("Equal", 0, 1),
    Sketcher.Constraint("Equal", 1, 2),
    Sketcher.Constraint("Equal", 2, 3),
    Sketcher.Constraint("Equal", 3, 4),
    Sketcher.Constraint("Equal", 4, 5),
    Sketcher.Constraint("Horizontal", 0, 3, 1, 3),
    Sketcher.Constraint("Horizontal", 1, 3, 2, 3),
    Sketcher.Constraint("Horizontal", 2, 3, 3, 3),
    Sketcher.Constraint("Horizontal", 3, 3, 4, 3),
    Sketcher.Constraint("Horizontal", 4, 3, 5, 3),
    Sketcher.Constraint("Diameter", 0, Q("2.5 mm")),
    Sketcher.Constraint("DistanceX", 0, 3, -1, 1, Q("275 mm")),
    Sketcher.Constraint("DistanceX", 1, 3, -1, 1, Q("222 mm")),
    Sketcher.Constraint("DistanceX", 2, 3, -1, 1, Q("169 mm")),
    Sketcher.Constraint("DistanceX", 3, 3, -1, 1, Q("116 mm")),
    Sketcher.Constraint("DistanceX", 4, 3, -1, 1, Q("63 mm")),
    Sketcher.Constraint("DistanceX", 5, 3, -1, 1, Q("10 mm")),
    Sketcher.Constraint("DistanceY", -1, 1, 0, 3, Q("8.063183 mm")),
])
pocket5 = doc.addObject("PartDesign::Pocket", "Pocket004")
body.addObject(pocket5)
pocket5.Profile = sketch6
pocket5.Length = 5

doc.recompute()
